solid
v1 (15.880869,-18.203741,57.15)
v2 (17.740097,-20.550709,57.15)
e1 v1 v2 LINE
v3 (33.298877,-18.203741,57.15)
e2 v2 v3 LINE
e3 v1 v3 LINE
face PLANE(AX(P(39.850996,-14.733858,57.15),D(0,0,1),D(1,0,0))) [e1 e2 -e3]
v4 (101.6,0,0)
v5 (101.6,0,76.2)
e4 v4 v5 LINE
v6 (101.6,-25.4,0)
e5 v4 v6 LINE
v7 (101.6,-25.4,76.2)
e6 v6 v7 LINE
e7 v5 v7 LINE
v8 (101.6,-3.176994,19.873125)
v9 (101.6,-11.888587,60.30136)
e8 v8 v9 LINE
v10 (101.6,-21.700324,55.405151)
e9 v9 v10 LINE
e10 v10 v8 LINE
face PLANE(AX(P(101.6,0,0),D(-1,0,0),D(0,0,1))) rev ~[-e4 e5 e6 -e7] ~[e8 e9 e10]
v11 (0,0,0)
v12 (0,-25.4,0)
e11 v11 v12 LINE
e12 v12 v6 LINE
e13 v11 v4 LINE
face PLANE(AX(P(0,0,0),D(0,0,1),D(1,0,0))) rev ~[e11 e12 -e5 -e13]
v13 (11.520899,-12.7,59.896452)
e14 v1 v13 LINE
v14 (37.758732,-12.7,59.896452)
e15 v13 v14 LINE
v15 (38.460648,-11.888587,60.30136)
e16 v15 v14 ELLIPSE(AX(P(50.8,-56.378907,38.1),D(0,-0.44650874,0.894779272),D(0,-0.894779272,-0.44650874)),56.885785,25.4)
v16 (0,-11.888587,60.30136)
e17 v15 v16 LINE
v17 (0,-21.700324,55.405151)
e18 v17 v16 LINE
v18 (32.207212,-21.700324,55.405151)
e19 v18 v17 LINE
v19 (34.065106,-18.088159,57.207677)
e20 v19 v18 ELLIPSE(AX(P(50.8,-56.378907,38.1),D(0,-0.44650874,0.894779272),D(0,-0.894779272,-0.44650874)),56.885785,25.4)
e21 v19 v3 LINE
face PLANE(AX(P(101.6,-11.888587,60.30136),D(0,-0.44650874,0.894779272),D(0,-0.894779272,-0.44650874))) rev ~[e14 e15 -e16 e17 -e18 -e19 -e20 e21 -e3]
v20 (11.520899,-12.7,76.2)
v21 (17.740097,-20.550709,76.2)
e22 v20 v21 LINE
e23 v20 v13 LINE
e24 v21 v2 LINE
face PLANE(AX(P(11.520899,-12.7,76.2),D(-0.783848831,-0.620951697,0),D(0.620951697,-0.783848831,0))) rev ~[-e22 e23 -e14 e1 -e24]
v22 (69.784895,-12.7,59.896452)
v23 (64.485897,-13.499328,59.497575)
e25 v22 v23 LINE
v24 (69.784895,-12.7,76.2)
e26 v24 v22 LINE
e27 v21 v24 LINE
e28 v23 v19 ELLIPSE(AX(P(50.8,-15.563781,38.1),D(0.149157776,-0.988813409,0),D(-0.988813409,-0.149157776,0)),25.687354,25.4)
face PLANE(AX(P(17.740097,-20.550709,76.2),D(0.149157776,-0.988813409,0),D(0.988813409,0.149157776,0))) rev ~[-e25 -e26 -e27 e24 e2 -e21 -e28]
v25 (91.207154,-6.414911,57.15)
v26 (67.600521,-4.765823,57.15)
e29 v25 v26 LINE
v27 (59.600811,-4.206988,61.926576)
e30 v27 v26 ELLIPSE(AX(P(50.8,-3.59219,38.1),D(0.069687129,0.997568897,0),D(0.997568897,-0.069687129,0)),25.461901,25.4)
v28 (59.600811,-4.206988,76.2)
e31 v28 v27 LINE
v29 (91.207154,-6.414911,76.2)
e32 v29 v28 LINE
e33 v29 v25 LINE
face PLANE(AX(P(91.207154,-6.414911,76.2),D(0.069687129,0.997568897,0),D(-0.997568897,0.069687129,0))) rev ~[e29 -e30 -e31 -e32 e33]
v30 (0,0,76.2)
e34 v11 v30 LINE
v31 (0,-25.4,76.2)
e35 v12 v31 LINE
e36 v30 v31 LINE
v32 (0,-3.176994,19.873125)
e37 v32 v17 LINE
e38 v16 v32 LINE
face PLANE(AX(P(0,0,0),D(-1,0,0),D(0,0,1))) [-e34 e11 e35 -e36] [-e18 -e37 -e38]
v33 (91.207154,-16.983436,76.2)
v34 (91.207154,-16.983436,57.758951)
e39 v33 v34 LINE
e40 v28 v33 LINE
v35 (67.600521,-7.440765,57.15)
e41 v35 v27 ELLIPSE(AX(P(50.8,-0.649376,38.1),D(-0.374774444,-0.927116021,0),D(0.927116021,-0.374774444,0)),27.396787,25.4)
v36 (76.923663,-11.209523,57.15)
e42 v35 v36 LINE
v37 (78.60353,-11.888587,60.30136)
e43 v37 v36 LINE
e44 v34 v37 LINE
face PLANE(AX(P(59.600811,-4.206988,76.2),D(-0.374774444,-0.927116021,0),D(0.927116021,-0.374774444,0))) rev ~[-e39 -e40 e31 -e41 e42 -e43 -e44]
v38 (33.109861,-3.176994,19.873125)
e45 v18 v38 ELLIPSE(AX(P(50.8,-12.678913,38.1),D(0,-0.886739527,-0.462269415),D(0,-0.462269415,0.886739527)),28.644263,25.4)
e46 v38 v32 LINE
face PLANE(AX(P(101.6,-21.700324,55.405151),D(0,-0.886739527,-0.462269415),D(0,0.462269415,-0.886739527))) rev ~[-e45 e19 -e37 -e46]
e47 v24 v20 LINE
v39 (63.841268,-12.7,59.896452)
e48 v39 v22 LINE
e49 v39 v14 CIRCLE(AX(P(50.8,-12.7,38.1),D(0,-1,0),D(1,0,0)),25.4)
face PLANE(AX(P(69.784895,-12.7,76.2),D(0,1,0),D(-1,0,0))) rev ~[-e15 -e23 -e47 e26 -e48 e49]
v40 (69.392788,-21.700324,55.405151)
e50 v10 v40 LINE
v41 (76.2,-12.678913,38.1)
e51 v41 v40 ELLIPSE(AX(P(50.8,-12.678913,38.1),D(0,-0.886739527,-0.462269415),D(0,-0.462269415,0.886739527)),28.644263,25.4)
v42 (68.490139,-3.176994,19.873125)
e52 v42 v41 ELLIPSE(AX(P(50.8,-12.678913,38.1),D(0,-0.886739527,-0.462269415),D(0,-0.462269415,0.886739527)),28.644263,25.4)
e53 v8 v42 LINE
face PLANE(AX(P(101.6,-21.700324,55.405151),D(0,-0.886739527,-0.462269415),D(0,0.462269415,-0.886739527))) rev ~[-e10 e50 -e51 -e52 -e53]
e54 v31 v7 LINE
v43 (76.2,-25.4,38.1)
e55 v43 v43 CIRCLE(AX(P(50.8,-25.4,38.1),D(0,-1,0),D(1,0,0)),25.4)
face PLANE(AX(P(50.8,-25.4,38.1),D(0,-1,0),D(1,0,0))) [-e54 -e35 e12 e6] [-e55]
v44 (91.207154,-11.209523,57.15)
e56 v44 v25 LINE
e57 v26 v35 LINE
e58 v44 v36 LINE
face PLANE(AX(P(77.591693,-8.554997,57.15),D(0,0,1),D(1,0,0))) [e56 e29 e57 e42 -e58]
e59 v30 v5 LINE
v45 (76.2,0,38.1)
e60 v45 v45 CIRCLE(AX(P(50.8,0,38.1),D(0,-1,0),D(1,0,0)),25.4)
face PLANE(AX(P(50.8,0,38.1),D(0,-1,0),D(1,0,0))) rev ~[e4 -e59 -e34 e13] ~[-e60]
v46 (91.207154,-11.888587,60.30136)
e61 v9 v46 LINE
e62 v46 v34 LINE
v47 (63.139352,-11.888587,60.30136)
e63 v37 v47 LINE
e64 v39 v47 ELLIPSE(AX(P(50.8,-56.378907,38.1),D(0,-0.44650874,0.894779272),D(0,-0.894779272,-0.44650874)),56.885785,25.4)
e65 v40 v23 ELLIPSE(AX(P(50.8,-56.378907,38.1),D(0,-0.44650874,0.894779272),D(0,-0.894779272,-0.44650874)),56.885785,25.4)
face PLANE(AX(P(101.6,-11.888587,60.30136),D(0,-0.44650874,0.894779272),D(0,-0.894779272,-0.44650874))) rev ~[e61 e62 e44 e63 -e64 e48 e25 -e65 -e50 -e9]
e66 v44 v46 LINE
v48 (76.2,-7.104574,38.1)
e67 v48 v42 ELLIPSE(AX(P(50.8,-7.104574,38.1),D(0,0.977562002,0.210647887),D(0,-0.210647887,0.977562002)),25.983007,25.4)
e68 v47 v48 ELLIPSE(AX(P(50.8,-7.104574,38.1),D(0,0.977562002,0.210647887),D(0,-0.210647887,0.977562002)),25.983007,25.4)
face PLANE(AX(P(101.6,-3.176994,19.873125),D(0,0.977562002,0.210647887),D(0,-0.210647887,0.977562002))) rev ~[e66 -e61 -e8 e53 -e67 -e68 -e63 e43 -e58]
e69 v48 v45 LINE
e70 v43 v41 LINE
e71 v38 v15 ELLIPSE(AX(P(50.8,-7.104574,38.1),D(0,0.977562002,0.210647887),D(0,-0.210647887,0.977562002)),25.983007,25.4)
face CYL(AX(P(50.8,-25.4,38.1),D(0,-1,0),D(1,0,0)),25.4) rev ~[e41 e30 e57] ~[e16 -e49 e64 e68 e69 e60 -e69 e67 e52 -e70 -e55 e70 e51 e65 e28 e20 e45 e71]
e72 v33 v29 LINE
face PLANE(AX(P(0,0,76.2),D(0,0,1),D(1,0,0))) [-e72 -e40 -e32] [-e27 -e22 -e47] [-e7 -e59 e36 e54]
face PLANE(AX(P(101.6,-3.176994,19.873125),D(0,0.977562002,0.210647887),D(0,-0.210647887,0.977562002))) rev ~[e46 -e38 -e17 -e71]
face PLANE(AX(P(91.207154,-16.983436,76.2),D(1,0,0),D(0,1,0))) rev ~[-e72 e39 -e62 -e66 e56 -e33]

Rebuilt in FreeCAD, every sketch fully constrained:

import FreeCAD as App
import Part
import Sketcher
Q = App.Units.Quantity


def add_polygon(sketch, points):
    """Adds a closed chain of lines whose ends are joined by coincident constraints."""
    first, n = sketch.GeometryCount, len(points)
    for a, b in zip(points, points[1:] + points[:1]):
        sketch.addGeometry(Part.LineSegment(App.Vector(*a, 0), App.Vector(*b, 0)), False)
    for i in range(n):
        sketch.addConstraint(Sketcher.Constraint("Coincident", first + i, 2, first + (i + 1) % n, 1))

doc = App.newDocument("Part")
body = doc.addObject("PartDesign::Body", "Body")

# Sketch on XZ plane
sketch1 = body.newObject("Sketcher::SketchObject", "Sketch")
sketch1.AttachmentSupport = (doc.getObject("XZ_Plane"), [""])
sketch1.MapMode = "FlatFace"
add_polygon(sketch1, [(0, 76.2), (0, 0), (101.6, 0), (101.6, 76.2)])  # lines 0-3
sketch1.addConstraint(Sketcher.Constraint("Vertical", 0))
sketch1.addConstraint(Sketcher.Constraint("Horizontal", 1))
sketch1.addConstraint(Sketcher.Constraint("Vertical", 2))
sketch1.addConstraint(Sketcher.Constraint("Horizontal", 3))
sketch1.addConstraint(Sketcher.Constraint("Coincident", 0, 2, -1, 1))
sketch1.addConstraint(Sketcher.Constraint("DistanceX", 1, 1, 1, 2, Q("4 in")))
sketch1.addConstraint(Sketcher.Constraint("DistanceY", 0, 2, 0, 1, Q("3 in")))
pad1 = body.newObject("PartDesign::Pad", "Pad")
pad1.Profile = sketch1
pad1.Length = Q("1 in")

# Sketch on XZ plane
sketch2 = body.newObject("Sketcher::SketchObject", "Sketch001")
sketch2.AttachmentSupport = (doc.getObject("XZ_Plane"), [""])
sketch2.MapMode = "FlatFace"
sketch2.AttachmentOffset = App.Placement(App.Vector(0, 0, 1 * 25.4), App.Rotation())
sketch2.addGeometry(Part.Circle(App.Vector(50.8, 38.1, 0), App.Vector(0, 0, 1), 25.4), False)
sketch2.addConstraint(Sketcher.Constraint("Diameter", 0, Q("2 in")))
sketch2.addConstraint(Sketcher.Constraint("DistanceX", -1, 1, 0, 3, Q("2 in")))
sketch2.addConstraint(Sketcher.Constraint("DistanceY", -1, 1, 0, 3, Q("1.5 in")))
pocket1 = body.newObject("PartDesign::Pocket", "Pocket")
pocket1.Profile = sketch2
pocket1.Type = "ThroughAll"

# Sketch on XY plane
sketch3 = body.newObject("Sketcher::SketchObject", "Sketch002")
sketch3.AttachmentSupport = (doc.getObject("XY_Plane"), [""])
sketch3.MapMode = "FlatFace"
sketch3.AttachmentOffset = App.Placement(App.Vector(0, 0, 3 * 25.4), App.Rotation())
add_polygon(sketch3, [(69.784895, -12.7), (11.520899, -12.7), (17.740097, -20.550709)])  # lines 0-2
sketch3.addConstraint(Sketcher.Constraint("Horizontal", 0))
sketch3.addConstraint(Sketcher.Constraint("DistanceY", 0, 2, -1, 1, Q("0.5 in")))
sketch3.addConstraint(Sketcher.Constraint("DistanceX", -1, 1, 0, 2, 11.520899))
sketch3.addConstraint(Sketcher.Constraint("DistanceX", 1, 2, 2, 2, 52.044798))
sketch3.addConstraint(Sketcher.Constraint("Distance", 1, 10.015591))
sketch3.addConstraint(Sketcher.Constraint("Distance", 2, 52.633588))
pocket2 = body.newObject("PartDesign::Pocket", "Pocket001")
pocket2.Profile = sketch3
pocket2.Length = Q("0.75 in")

# Sketch on XY plane
sketch4 = body.newObject("Sketcher::SketchObject", "Sketch003")
sketch4.AttachmentSupport = (doc.getObject("XY_Plane"), [""])
sketch4.MapMode = "FlatFace"
sketch4.AttachmentOffset = App.Placement(App.Vector(0, 0, 3 * 25.4), App.Rotation())
add_polygon(sketch4, [(59.600811, -4.206988), (91.207154, -16.983436), (91.207154, -6.414911)])  # lines 0-2
sketch4.addConstraint(Sketcher.Constraint("Vertical", 1))
sketch4.addConstraint(Sketcher.Constraint("Distance", 2, 31.683369))
sketch4.addConstraint(Sketcher.Constraint("DistanceY", 1, 1, 1, 2, 10.568525))
sketch4.addConstraint(Sketcher.Constraint("DistanceY", 1, 2, -1, 1, 6.414911))
sketch4.addConstraint(Sketcher.Constraint("DistanceX", -1, 1, 2, 2, 59.600811))
sketch4.addConstraint(Sketcher.Constraint("DistanceY", 0, 2, 2, 2, 12.776448))
pocket3 = body.newObject("PartDesign::Pocket", "Pocket002")
pocket3.Profile = sketch4
pocket3.Length = Q("0.75 in")

# Sketch on YZ plane
sketch5 = body.newObject("Sketcher::SketchObject", "Sketch004")
sketch5.AttachmentSupport = (doc.getObject("YZ_Plane"), [""])
sketch5.MapMode = "FlatFace"
sketch5.AttachmentOffset = App.Placement(App.Vector(0, 0, 4 * 25.4), App.Rotation())
add_polygon(sketch5, [(-3.176994, 19.873125), (-11.888587, 60.30136), (-21.700324, 55.405151)])  # lines 0-2
sketch5.addConstraint(Sketcher.Constraint("Distance", 1, 10.965539))
sketch5.addConstraint(Sketcher.Constraint("Distance", 2, 40.070421))
sketch5.addConstraint(Sketcher.Constraint("DistanceY", -1, 1, 0, 2, 60.30136))
sketch5.addConstraint(Sketcher.Constraint("DistanceY", -1, 1, 1, 2, 55.405151))
sketch5.addConstraint(Sketcher.Constraint("DistanceX", 1, 2, 2, 2, 18.52333))
sketch5.addConstraint(Sketcher.Constraint("DistanceX", 0, 2, -1, 1, 11.888587))
pocket4 = body.newObject("PartDesign::Pocket", "Pocket003")
pocket4.Profile = sketch5
pocket4.Type = "ThroughAll"

doc.recompute()
